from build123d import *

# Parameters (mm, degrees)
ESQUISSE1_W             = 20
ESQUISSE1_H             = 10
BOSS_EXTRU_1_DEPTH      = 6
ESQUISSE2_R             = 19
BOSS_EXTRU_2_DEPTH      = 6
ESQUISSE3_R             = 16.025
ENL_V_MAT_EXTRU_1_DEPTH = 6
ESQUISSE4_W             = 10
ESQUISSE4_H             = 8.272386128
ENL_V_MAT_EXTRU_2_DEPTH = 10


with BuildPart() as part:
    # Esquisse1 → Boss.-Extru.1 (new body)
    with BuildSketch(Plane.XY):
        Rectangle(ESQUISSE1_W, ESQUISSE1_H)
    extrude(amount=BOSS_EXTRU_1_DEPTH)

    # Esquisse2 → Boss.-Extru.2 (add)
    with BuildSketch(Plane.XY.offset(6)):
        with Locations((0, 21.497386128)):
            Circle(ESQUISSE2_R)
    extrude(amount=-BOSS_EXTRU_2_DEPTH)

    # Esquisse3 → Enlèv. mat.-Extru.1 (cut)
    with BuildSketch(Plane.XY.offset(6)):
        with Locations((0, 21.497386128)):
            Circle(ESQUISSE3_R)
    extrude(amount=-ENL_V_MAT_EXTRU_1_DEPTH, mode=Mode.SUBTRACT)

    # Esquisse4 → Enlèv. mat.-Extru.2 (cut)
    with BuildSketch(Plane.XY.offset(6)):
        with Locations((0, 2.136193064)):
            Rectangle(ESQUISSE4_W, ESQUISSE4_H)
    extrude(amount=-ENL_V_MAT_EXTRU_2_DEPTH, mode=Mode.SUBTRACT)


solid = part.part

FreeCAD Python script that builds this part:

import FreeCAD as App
import Part
import Sketcher
from FreeCAD import Vector
Q = App.Units.Quantity

doc = App.newDocument("Part")
body = doc.addObject("PartDesign::Body", "Body")

# Sketch on XY plane
sketch1 = body.newObject("Sketcher::SketchObject", "Sketch")
sketch1.AttachmentSupport = (doc.getObject("XY_Plane"), [""])
sketch1.MapMode = "FlatFace"
sketch1.addGeometry(Part.LineSegment(Vector(-10, 5, 0), Vector(-10, -5, 0)), False)
sketch1.addGeometry(Part.LineSegment(Vector(-10, -5, 0), Vector(10, -5, 0)), False)
sketch1.addGeometry(Part.LineSegment(Vector(10, -5, 0), Vector(10, 5, 0)), False)
sketch1.addGeometry(Part.LineSegment(Vector(10, 5, 0), Vector(-10, 5, 0)), False)
sketch1.addConstraint(Sketcher.Constraint("Coincident", 0, 2, 1, 1))
sketch1.addConstraint(Sketcher.Constraint("Coincident", 1, 2, 2, 1))
sketch1.addConstraint(Sketcher.Constraint("Coincident", 2, 2, 3, 1))
sketch1.addConstraint(Sketcher.Constraint("Coincident", 3, 2, 0, 1))
sketch1.addConstraint(Sketcher.Constraint("Vertical", 0))
sketch1.addConstraint(Sketcher.Constraint("Horizontal", 1))
sketch1.addConstraint(Sketcher.Constraint("Vertical", 2))
sketch1.addConstraint(Sketcher.Constraint("Horizontal", 3))
sketch1.addConstraint(Sketcher.Constraint("Symmetric", 0, 2, 2, 2, -1, 1))
sketch1.addConstraint(Sketcher.Constraint("DistanceX", 1, 1, 1, 2, Q("20 mm")))
sketch1.addConstraint(Sketcher.Constraint("DistanceY", 0, 2, 0, 1, Q("10 mm")))
pad1 = body.newObject("PartDesign::Pad", "Pad")
pad1.Profile = sketch1
pad1.Length = 6

# Sketch on XY plane
sketch2 = body.newObject("Sketcher::SketchObject", "Sketch001")
sketch2.AttachmentSupport = (doc.getObject("XY_Plane"), [""])
sketch2.MapMode = "FlatFace"
sketch2.AttachmentOffset = App.Placement(Vector(0, 0, 6), App.Rotation())
sketch2.addGeometry(Part.Circle(Vector(0, 21, 0), Vector(0, 0, 1), 19), False)
sketch2.addConstraint(Sketcher.Constraint("PointOnObject", 0, 3, -2))
sketch2.addConstraint(Sketcher.Constraint("Diameter", 0, Q("38 mm")))
sketch2.addConstraint(Sketcher.Constraint("DistanceY", -1, 1, 0, 3, Q("21.497386 mm")))
pad2 = body.newObject("PartDesign::Pad", "Pad001")
pad2.Profile = sketch2
pad2.Length = 6
pad2.Reversed = True

# Sketch on XY plane
sketch3 = body.newObject("Sketcher::SketchObject", "Sketch002")
sketch3.AttachmentSupport = (doc.getObject("XY_Plane"), [""])
sketch3.MapMode = "FlatFace"
sketch3.AttachmentOffset = App.Placement(Vector(0, 0, 6), App.Rotation())
sketch3.addGeometry(Part.Circle(Vector(0, 21, 0), Vector(0, 0, 1), 16), False)
sketch3.addConstraint(Sketcher.Constraint("PointOnObject", 0, 3, -2))
sketch3.addConstraint(Sketcher.Constraint("Diameter", 0, Q("32.05 mm")))
sketch3.addConstraint(Sketcher.Constraint("DistanceY", -1, 1, 0, 3, Q("21.497386 mm")))
pocket1 = body.newObject("PartDesign::Pocket", "Pocket")
pocket1.Profile = sketch3
pocket1.Length = 6

# Sketch on XY plane
sketch4 = body.newObject("Sketcher::SketchObject", "Sketch003")
sketch4.AttachmentSupport = (doc.getObject("XY_Plane"), [""])
sketch4.MapMode = "FlatFace"
sketch4.AttachmentOffset = App.Placement(Vector(0, 0, 6), App.Rotation())
sketch4.addGeometry(Part.LineSegment(Vector(-5, 6, 0), Vector(-5, -2, 0)), False)
sketch4.addGeometry(Part.LineSegment(Vector(-5, -2, 0), Vector(5, -2, 0)), False)
sketch4.addGeometry(Part.LineSegment(Vector(5, -2, 0), Vector(5, 6, 0)), False)
sketch4.addGeometry(Part.LineSegment(Vector(5, 6, 0), Vector(-5, 6, 0)), False)
sketch4.addConstraint(Sketcher.Constraint("Coincident", 0, 2, 1, 1))
sketch4.addConstraint(Sketcher.Constraint("Coincident", 1, 2, 2, 1))
sketch4.addConstraint(Sketcher.Constraint("Coincident", 2, 2, 3, 1))
sketch4.addConstraint(Sketcher.Constraint("Coincident", 3, 2, 0, 1))
sketch4.addConstraint(Sketcher.Constraint("Vertical", 0))
sketch4.addConstraint(Sketcher.Constraint("Horizontal", 1))
sketch4.addConstraint(Sketcher.Constraint("Vertical", 2))
sketch4.addConstraint(Sketcher.Constraint("Horizontal", 3))
sketch4.addConstraint(Sketcher.Constraint("DistanceX", 1, 1, 1, 2, Q("10 mm")))
sketch4.addConstraint(Sketcher.Constraint("DistanceX", 0, 2, -1, 1, Q("5 mm")))
sketch4.addConstraint(Sketcher.Constraint("DistanceY", 0, 2, -1, 1, Q("2 mm")))
sketch4.addConstraint(Sketcher.Constraint("DistanceY", 0, 2, 0, 1, Q("8.272386 mm")))
pocket2 = body.newObject("PartDesign::Pocket", "Pocket001")
pocket2.Profile = sketch4
pocket2.Length = 10

doc.recompute()
